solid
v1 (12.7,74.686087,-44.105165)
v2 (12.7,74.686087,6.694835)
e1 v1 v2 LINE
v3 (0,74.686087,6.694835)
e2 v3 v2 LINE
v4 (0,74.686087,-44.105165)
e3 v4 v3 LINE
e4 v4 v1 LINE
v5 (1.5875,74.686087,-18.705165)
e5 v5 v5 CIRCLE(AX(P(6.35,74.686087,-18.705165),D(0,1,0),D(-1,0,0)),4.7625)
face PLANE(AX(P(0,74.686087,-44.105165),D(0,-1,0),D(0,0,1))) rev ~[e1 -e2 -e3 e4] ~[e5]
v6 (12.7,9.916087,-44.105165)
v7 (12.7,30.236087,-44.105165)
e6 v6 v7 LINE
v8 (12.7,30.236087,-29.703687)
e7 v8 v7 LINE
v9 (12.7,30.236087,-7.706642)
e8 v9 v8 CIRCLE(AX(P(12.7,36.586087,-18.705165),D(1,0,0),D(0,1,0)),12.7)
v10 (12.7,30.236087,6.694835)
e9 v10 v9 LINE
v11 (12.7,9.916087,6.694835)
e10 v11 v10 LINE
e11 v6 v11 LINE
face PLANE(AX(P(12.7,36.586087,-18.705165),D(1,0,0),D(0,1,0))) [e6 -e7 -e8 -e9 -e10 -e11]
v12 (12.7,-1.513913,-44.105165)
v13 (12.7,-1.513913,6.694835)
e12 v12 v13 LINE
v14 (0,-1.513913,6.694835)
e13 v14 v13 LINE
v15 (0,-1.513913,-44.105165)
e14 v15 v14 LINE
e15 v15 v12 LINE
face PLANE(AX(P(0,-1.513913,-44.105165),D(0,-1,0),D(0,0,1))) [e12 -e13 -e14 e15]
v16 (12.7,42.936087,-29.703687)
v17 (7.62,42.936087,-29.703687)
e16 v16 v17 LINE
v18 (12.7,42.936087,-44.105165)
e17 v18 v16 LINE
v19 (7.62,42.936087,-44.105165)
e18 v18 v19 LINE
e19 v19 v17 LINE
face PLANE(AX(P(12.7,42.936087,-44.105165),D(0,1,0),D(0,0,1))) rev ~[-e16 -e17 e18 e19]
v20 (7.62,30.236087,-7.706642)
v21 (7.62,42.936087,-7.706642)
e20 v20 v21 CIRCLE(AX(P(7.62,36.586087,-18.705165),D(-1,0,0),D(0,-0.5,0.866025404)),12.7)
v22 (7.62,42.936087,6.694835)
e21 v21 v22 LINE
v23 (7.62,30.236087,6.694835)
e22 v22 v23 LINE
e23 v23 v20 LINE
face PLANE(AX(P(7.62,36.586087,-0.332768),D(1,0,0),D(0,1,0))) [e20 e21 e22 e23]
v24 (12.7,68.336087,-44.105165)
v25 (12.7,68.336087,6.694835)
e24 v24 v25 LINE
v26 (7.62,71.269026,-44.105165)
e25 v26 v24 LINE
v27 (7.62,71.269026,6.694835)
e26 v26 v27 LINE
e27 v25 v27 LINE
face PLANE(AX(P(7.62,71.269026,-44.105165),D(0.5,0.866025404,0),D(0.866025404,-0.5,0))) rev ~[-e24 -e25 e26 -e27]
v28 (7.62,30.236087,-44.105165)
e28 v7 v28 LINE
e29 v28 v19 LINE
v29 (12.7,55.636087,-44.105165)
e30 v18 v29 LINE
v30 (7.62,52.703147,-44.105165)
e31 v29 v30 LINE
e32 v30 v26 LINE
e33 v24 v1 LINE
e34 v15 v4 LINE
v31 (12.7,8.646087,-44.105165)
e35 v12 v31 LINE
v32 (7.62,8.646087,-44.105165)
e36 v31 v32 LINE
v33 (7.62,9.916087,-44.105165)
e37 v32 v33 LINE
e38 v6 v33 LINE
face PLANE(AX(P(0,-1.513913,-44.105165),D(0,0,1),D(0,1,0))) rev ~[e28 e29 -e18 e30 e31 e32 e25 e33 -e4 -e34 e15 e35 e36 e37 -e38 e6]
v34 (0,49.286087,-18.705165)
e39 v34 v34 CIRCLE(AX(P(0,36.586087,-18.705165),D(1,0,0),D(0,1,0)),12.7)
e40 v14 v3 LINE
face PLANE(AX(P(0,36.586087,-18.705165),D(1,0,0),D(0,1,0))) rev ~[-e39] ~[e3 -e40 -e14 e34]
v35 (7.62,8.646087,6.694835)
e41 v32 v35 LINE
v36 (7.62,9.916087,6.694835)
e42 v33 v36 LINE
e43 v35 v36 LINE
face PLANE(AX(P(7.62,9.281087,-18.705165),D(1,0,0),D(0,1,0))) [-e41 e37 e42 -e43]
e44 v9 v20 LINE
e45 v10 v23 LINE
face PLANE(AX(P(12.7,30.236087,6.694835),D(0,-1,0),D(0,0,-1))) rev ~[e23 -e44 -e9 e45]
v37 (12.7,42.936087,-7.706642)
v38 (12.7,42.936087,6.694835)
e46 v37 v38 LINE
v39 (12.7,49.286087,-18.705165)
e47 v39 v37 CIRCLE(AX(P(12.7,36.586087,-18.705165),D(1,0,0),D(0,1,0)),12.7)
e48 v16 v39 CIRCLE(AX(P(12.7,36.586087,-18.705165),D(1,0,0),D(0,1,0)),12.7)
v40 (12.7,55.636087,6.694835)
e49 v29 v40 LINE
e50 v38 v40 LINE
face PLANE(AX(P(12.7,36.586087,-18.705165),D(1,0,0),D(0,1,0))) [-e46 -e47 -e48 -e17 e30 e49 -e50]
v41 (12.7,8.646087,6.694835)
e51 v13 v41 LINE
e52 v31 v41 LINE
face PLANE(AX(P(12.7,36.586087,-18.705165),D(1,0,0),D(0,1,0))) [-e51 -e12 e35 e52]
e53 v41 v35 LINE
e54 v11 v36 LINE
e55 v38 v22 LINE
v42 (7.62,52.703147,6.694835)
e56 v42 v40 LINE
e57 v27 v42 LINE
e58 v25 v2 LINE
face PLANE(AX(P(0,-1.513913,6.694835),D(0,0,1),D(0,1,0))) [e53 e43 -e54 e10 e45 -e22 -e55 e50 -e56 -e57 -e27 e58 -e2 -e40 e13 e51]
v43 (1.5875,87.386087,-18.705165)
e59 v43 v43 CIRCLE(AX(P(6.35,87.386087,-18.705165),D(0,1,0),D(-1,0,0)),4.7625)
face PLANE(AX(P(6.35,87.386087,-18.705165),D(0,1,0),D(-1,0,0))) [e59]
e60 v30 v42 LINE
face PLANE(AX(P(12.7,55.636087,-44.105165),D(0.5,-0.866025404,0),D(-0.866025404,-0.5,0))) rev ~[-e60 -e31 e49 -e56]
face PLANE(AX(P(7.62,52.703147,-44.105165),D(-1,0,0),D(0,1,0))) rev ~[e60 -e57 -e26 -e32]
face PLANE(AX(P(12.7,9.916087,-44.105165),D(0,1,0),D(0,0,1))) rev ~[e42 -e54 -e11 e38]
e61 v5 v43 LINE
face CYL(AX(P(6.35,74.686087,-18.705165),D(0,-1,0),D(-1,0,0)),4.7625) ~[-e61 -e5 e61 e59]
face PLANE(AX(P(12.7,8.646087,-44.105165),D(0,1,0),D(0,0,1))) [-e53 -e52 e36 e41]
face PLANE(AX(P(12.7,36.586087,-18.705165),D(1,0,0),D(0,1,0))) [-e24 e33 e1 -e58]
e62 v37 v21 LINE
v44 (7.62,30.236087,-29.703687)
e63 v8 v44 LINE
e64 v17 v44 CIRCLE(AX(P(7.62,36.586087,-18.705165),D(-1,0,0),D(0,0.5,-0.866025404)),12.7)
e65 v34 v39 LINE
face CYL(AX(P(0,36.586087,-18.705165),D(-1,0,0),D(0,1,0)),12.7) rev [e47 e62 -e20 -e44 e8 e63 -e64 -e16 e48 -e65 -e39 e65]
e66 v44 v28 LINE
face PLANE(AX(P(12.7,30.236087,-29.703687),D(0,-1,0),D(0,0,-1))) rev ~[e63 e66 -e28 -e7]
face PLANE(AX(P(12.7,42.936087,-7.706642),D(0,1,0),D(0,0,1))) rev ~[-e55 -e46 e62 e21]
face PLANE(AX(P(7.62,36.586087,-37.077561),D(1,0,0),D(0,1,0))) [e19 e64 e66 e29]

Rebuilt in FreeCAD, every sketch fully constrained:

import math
import FreeCAD as App
import Part
import Sketcher

V = App.Vector
Q = App.Units.Quantity


def add_polygon(sketch, points):
    """Adds a closed chain of lines whose ends are joined by coincident constraints."""
    first, n = sketch.GeometryCount, len(points)
    for a, b in zip(points, points[1:] + points[:1]):
        sketch.addGeometry(Part.LineSegment(App.Vector(*a, 0), App.Vector(*b, 0)), False)
    for i in range(n):
        sketch.addConstraint(Sketcher.Constraint("Coincident", first + i, 2, first + (i + 1) % n, 1))

doc = App.newDocument("Part")
body = doc.addObject("PartDesign::Body", "Body")

sketch1 = body.newObject("Sketcher::SketchObject", "Sketch")
sketch1.AttachmentSupport = (doc.getObject("YZ_Plane"), [""])
sketch1.MapMode = "FlatFace"
add_polygon(sketch1, [(-2, 7), (-2, -44), (75, -44), (75, 7)])
sketch1.addGeometry(Part.Circle(V(37, -19, 0), V(0, 0, 1), 13), False)
sketch1.addConstraint([
    Sketcher.Constraint("Vertical", 0),
    Sketcher.Constraint("Horizontal", 1),
    Sketcher.Constraint("Vertical", 2),
    Sketcher.Constraint("Horizontal", 3),
    Sketcher.Constraint("Diameter", 4, Q("1 in")),
    Sketcher.Constraint("DistanceX", 1, 1, 1, 2, Q("3 in")),
    Sketcher.Constraint("DistanceY", 0, 2, 0, 1, Q("2 in")),
    Sketcher.Constraint("DistanceY", 0, 2, 4, 3, Q("1 in")),
    Sketcher.Constraint("DistanceX", 0, 2, 4, 3, Q("1.5 in")),
    Sketcher.Constraint("DistanceX", -1, 1, 4, 3, 36.586087),
    Sketcher.Constraint("DistanceY", 4, 3, -1, 1, 18.705165),
])
pad1 = body.newObject("PartDesign::Pad", "Pad")
pad1.Profile = sketch1
pad1.Length = Q("0.5 in")

sketch2 = body.newObject("Sketcher::SketchObject", "Sketch001")
sketch2.AttachmentSupport = (doc.getObject("YZ_Plane"), [""])
sketch2.MapMode = "FlatFace"
sketch2.AttachmentOffset = App.Placement(V(0, 0, 0.5 * 25.4), App.Rotation())
add_polygon(sketch2, [(8.6, 6.7), (8.6, -44.1), (9.9, -44.1), (9.9, 6.7)])
sketch2.addGeometry(Part.LineSegment(V(42.9, 6.7, 0), V(30.2, 6.7, 0)), False)
sketch2.addGeometry(Part.LineSegment(V(30.2, 6.7, 0), V(30.2, -7.7, 0)), False)
sketch2.addGeometry(Part.ArcOfCircle(Part.Circle(V(36.6, -18.7, 0), V(0, 0, 1), 12.7), math.radians(60), math.radians(120)), False)
sketch2.addGeometry(Part.LineSegment(V(42.9, -7.7, 0), V(42.9, 6.7, 0)), False)
sketch2.addGeometry(Part.LineSegment(V(30.2, -29.7, 0), V(30.2, -44.1, 0)), False)
sketch2.addGeometry(Part.LineSegment(V(30.2, -44.1, 0), V(42.9, -44.1, 0)), False)
sketch2.addGeometry(Part.LineSegment(V(42.9, -44.1, 0), V(42.9, -29.7, 0)), False)
sketch2.addGeometry(Part.ArcOfCircle(Part.Circle(V(36.6, -18.7, 0), V(0, 0, 1), 12.7), math.radians(-120), math.radians(-60)), False)
sketch2.addConstraint([
    Sketcher.Constraint("Coincident", 4, 2, 5, 1),
    Sketcher.Constraint("Coincident", 5, 2, 6, 2),
    Sketcher.Constraint("Coincident", 6, 1, 7, 1),
    Sketcher.Constraint("Coincident", 7, 2, 4, 1),
    Sketcher.Constraint("Coincident", 8, 2, 9, 1),
    Sketcher.Constraint("Coincident", 9, 2, 10, 1),
    Sketcher.Constraint("Coincident", 10, 2, 11, 2),
    Sketcher.Constraint("Coincident", 11, 1, 8, 1),
    Sketcher.Constraint("Vertical", 0),
    Sketcher.Constraint("Horizontal", 1),
    Sketcher.Constraint("Vertical", 2),
    Sketcher.Constraint("Horizontal", 3),
    Sketcher.Constraint("Horizontal", 4),
    Sketcher.Constraint("Vertical", 5),
    Sketcher.Constraint("Vertical", 7),
    Sketcher.Constraint("Vertical", 8),
    Sketcher.Constraint("Horizontal", 9),
    Sketcher.Constraint("Vertical", 10),
    Sketcher.Constraint("Coincident", 11, 3, 6, 3),
    Sketcher.Constraint("Equal", 6, 11),
    Sketcher.Constraint("Horizontal", 3, 2, 4, 2),
    Sketcher.Constraint("Horizontal", 5, 2, 6, 1),
    Sketcher.Constraint("Horizontal", 1, 2, 8, 2),
    Sketcher.Constraint("Horizontal", 10, 2, 11, 1),
    Sketcher.Constraint("Vertical", 5, 2, 8, 2),
    Sketcher.Constraint("Equal", 7, 8),
    Sketcher.Constraint("Radius", 6, Q("0.5 in")),
    Sketcher.Constraint("DistanceY", 0, 2, 0, 1, Q("2 in")),
    Sketcher.Constraint("DistanceX", 4, 2, 4, 1, Q("0.5 in")),
    Sketcher.Constraint("DistanceX", 1, 1, 1, 2, Q("0.05 in")),
    Sketcher.Constraint("DistanceX", 0, 2, 6, 3, Q("1.1 in")),
    Sketcher.Constraint("DistanceX", -1, 1, 6, 3, 36.586087),
    Sketcher.Constraint("DistanceY", 6, 3, -1, 1, 18.705165),
])
pocket1 = body.newObject("PartDesign::Pocket", "Pocket")
pocket1.Profile = sketch2
pocket1.Length = Q("0.2 in")

sketch3 = body.newObject("Sketcher::SketchObject", "Sketch002")
sketch3.AttachmentSupport = (doc.getObject("XY_Plane"), [""])
sketch3.MapMode = "FlatFace"
sketch3.AttachmentOffset = App.Placement(V(0, 0, -44.105165), App.Rotation())
add_polygon(sketch3, [(13, 68), (13, 56), (8, 53), (8, 71)])
sketch3.addConstraint([
    Sketcher.Constraint("Vertical", 0),
    Sketcher.Constraint("Vertical", 2),
    Sketcher.Constraint("Equal", 1, 3),
    Sketcher.Constraint("DistanceY", 0, 2, 0, 1, Q("0.5 in")),
    Sketcher.Constraint("Angle", 1, Q("-150 deg")),
    Sketcher.Constraint("DistanceX", -1, 1, 0, 2, Q("0.5 in")),
    Sketcher.Constraint("DistanceX", -1, 1, 1, 2, Q("0.3 in")),
    Sketcher.Constraint("DistanceY", -1, 1, 0, 2, 55.636087),
])
pocket2 = body.newObject("PartDesign::Pocket", "Pocket001")
pocket2.Profile = sketch3
pocket2.Type = "ThroughAll"
pocket2.Reversed = True

sketch4 = body.newObject("Sketcher::SketchObject", "Sketch003")
sketch4.AttachmentSupport = (doc.getObject("XZ_Plane"), [""])
sketch4.MapMode = "FlatFace"
sketch4.AttachmentOffset = App.Placement(V(0, 0, -74.686087), App.Rotation())
sketch4.addGeometry(Part.Circle(V(6.3, -18.7, 0), V(0, 0, 1), 4.8), False)
sketch4.addConstraint([
    Sketcher.Constraint("Diameter", 0, Q("0.375 in")),
    Sketcher.Constraint("DistanceX", -1, 1, 0, 3, Q("0.25 in")),
    Sketcher.Constraint("DistanceY", 0, 3, -1, 1, 18.705165),
])
pad2 = body.newObject("PartDesign::Pad", "Pad001")
pad2.Profile = sketch4
pad2.Length = Q("0.5 in")
pad2.Reversed = True

doc.recompute()
